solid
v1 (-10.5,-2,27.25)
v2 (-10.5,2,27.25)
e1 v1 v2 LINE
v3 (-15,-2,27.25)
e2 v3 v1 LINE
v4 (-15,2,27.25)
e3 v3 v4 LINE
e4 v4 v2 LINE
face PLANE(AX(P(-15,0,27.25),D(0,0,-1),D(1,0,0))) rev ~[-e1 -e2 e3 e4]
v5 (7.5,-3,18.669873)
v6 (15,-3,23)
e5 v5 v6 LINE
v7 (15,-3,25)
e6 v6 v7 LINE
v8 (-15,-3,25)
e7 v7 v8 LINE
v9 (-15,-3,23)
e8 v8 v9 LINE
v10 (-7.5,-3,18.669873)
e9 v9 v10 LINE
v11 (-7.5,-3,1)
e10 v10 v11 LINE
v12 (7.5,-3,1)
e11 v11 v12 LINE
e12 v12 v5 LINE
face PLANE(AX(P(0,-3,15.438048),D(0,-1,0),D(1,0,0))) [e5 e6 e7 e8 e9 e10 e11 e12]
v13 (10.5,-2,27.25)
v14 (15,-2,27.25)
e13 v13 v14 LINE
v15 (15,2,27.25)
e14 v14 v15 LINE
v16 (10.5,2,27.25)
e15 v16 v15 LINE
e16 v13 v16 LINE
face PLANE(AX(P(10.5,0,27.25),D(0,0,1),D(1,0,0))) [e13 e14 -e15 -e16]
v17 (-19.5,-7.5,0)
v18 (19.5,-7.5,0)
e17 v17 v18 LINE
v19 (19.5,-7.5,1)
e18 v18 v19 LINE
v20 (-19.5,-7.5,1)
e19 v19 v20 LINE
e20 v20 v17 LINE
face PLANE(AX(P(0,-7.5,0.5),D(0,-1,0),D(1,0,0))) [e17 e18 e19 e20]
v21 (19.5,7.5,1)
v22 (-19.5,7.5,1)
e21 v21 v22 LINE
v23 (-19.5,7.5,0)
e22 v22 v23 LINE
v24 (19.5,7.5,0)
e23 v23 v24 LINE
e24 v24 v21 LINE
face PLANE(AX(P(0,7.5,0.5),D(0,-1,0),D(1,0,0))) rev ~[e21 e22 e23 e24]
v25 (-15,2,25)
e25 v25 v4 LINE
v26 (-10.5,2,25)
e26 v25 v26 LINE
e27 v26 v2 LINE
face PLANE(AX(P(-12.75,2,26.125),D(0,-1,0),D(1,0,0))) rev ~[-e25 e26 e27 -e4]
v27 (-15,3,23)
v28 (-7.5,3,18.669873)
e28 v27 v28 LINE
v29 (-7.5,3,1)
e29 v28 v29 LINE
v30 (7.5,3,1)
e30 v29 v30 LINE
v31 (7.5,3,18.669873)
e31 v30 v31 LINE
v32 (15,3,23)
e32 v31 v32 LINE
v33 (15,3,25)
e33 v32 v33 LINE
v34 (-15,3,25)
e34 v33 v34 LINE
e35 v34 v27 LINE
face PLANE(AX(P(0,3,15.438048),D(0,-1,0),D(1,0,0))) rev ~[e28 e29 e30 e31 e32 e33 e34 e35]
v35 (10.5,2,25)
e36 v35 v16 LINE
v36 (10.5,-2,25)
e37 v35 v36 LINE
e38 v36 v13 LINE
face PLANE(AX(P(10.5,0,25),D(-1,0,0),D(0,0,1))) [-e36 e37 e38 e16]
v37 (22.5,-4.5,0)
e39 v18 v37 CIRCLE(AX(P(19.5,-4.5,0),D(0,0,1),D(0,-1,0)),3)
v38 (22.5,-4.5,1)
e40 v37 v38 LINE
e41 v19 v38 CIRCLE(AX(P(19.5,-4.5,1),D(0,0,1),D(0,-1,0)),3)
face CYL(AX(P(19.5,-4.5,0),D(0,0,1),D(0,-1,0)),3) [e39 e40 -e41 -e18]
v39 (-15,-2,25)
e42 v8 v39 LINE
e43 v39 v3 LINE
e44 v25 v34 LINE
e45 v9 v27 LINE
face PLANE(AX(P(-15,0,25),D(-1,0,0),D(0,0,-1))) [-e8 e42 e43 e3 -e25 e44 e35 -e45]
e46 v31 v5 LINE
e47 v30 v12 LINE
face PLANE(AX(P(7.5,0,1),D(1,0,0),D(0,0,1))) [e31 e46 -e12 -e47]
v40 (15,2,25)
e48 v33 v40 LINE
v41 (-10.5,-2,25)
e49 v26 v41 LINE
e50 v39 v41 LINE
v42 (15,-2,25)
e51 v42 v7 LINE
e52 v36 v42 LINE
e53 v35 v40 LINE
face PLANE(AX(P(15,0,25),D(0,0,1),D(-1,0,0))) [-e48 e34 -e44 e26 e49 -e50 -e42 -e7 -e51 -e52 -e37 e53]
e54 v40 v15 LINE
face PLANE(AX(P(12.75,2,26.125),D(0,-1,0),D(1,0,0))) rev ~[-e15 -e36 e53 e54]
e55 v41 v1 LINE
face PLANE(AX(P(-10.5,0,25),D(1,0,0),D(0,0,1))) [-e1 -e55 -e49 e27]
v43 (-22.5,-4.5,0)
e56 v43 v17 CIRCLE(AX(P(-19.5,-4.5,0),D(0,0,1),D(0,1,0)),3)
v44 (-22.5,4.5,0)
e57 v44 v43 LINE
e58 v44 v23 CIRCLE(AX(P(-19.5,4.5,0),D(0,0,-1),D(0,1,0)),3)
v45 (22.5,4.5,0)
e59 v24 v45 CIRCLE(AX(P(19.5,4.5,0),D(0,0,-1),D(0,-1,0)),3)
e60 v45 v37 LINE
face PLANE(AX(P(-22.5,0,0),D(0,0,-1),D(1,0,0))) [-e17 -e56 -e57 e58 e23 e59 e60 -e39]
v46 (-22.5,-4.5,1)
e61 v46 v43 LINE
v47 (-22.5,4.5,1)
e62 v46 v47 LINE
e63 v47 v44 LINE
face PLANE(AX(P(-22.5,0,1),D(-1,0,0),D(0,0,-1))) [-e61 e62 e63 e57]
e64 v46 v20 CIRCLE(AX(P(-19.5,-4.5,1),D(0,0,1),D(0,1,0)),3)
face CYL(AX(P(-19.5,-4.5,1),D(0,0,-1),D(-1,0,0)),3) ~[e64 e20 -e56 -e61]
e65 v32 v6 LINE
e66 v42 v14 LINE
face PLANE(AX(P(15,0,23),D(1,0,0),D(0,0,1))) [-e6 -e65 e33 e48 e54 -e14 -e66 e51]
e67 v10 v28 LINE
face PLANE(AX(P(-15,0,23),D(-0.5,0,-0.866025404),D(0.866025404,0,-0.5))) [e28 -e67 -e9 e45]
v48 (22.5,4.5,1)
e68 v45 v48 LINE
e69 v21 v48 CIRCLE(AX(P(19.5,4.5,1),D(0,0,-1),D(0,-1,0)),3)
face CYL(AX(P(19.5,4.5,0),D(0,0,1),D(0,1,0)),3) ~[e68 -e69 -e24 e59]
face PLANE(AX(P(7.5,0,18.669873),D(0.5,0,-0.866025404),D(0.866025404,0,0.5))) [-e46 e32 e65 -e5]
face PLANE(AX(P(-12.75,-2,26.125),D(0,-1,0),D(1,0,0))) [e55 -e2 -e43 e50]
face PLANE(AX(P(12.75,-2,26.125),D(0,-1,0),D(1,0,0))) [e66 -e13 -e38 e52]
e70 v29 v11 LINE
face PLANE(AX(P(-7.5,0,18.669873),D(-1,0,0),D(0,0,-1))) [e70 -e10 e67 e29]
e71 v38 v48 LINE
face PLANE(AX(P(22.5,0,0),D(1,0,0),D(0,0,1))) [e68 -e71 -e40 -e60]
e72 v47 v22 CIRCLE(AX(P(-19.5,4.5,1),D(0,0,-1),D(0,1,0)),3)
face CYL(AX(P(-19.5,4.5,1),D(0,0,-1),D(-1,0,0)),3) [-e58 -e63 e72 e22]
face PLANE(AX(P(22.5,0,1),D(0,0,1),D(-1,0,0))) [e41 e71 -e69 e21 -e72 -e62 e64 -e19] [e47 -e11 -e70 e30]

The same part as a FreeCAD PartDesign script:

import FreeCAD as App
import Part
import Sketcher
Q = App.Units.Quantity


def edges_at(feature, points):
    """Names of the edges that pass closest to the given points."""
    edges = feature.Shape.Edges
    near = lambda p: min(range(len(edges)), key=lambda i: edges[i].distToShape(Part.Vertex(*p))[0])
    return sorted({f"Edge{near(p) + 1}" for p in points})


def add_polygon(sketch, points):
    """Adds a closed chain of lines whose ends are joined by coincident constraints."""
    first, n = sketch.GeometryCount, len(points)
    for a, b in zip(points, points[1:] + points[:1]):
        sketch.addGeometry(Part.LineSegment(App.Vector(*a, 0), App.Vector(*b, 0)), False)
    for i in range(n):
        sketch.addConstraint(Sketcher.Constraint("Coincident", first + i, 2, first + (i + 1) % n, 1))

doc = App.newDocument("Part")
body = doc.addObject("PartDesign::Body", "Body")

sketch1 = doc.addObject("Sketcher::SketchObject", "Sketch")
body.addObject(sketch1)
sketch1.AttachmentSupport = (doc.XZ_Plane, [""])
sketch1.MapMode = "FlatFace"
add_polygon(sketch1, [(-7.5, 18.669873), (-7.5, 1), (7.5, 1), (7.5, 18.669873), (15, 23), (15, 25), (-15, 25), (-15, 23)])
sketch1.addConstraint([
    Sketcher.Constraint("Vertical", 0),
    Sketcher.Constraint("Horizontal", 1),
    Sketcher.Constraint("Vertical", 2),
    Sketcher.Constraint("Vertical", 4),
    Sketcher.Constraint("Horizontal", 5),
    Sketcher.Constraint("Vertical", 6),
    Sketcher.Constraint("Symmetric", 3, 2, 6, 2, -2),
    Sketcher.Constraint("Symmetric", 2, 2, 7, 2, -2),
    Sketcher.Constraint("DistanceX", 1, 1, 1, 2, Q("15 mm")),
    Sketcher.Constraint("DistanceX", 5, 2, 5, 1, Q("30 mm")),
    Sketcher.Constraint("DistanceY", 4, 1, 4, 2, Q("2 mm")),
    Sketcher.Constraint("Angle", 3, Q("30 deg")),
    Sketcher.Constraint("DistanceY", -1, 1, 0, 2, Q("1 mm")),
    Sketcher.Constraint("DistanceY", -1, 1, 3, 2, Q("23 mm")),
])
pad1 = doc.addObject("PartDesign::Pad", "Pad")
body.addObject(pad1)
pad1.Profile = sketch1
pad1.Length = 6
pad1.Midplane = True

sketch2 = doc.addObject("Sketcher::SketchObject", "Sketch001")
body.addObject(sketch2)
sketch2.AttachmentSupport = (doc.XZ_Plane, [""])
sketch2.MapMode = "FlatFace"
add_polygon(sketch2, [(-22.5, 1), (-22.5, 0), (22.5, 0), (22.5, 1)])
sketch2.addConstraint([
    Sketcher.Constraint("Vertical", 0),
    Sketcher.Constraint("Horizontal", 1),
    Sketcher.Constraint("Vertical", 2),
    Sketcher.Constraint("Horizontal", 3),
    Sketcher.Constraint("Symmetric", 0, 2, 1, 2, -1, 1),
    Sketcher.Constraint("DistanceX", 1, 1, 1, 2, Q("45 mm")),
    Sketcher.Constraint("DistanceY", 0, 2, 0, 1, Q("1 mm")),
])
pad2 = doc.addObject("PartDesign::Pad", "Pad001")
body.addObject(pad2)
pad2.Profile = sketch2
pad2.Length = 15
pad2.Midplane = True

sketch3 = doc.addObject("Sketcher::SketchObject", "Sketch002")
body.addObject(sketch3)
sketch3.AttachmentSupport = (doc.XZ_Plane, [""])
sketch3.MapMode = "FlatFace"
add_polygon(sketch3, [(10.5, 27.25), (10.5, 25), (15, 25), (15, 27.25)])
add_polygon(sketch3, [(-15, 27.25), (-15, 25), (-10.5, 25), (-10.5, 27.25)])
sketch3.addConstraint([
    Sketcher.Constraint("Vertical", 0),
    Sketcher.Constraint("Horizontal", 1),
    Sketcher.Constraint("Vertical", 2),
    Sketcher.Constraint("Horizontal", 3),
    Sketcher.Constraint("Vertical", 4),
    Sketcher.Constraint("Horizontal", 5),
    Sketcher.Constraint("Vertical", 6),
    Sketcher.Constraint("Horizontal", 7),
    Sketcher.Constraint("Symmetric", 1, 2, 4, 2, -2),
    Sketcher.Constraint("Symmetric", 3, 2, 6, 2, -2),
    Sketcher.Constraint("DistanceX", 1, 1, 1, 2, Q("4.5 mm")),
    Sketcher.Constraint("DistanceY", -1, 1, 0, 2, Q("25 mm")),
    Sketcher.Constraint("DistanceX", -1, 1, 1, 2, Q("15 mm")),
    Sketcher.Constraint("DistanceY", 0, 2, 0, 1, Q("2.25 mm")),
])
pad3 = doc.addObject("PartDesign::Pad", "Pad002")
body.addObject(pad3)
pad3.Profile = sketch3
pad3.Length = 4
pad3.Midplane = True
doc.recompute()

fillet = doc.addObject("PartDesign::Fillet", "Fillet")
body.addObject(fillet)
fillet.Base = (pad3, edges_at(pad3, [
    (22.5, -7.5, 0.5),
    (22.5, 7.5, 0.5),
    (-22.5, 7.5, 0.5),
    (-22.5, -7.5, 0.5),
]))
fillet.Radius = 3

doc.recompute()
